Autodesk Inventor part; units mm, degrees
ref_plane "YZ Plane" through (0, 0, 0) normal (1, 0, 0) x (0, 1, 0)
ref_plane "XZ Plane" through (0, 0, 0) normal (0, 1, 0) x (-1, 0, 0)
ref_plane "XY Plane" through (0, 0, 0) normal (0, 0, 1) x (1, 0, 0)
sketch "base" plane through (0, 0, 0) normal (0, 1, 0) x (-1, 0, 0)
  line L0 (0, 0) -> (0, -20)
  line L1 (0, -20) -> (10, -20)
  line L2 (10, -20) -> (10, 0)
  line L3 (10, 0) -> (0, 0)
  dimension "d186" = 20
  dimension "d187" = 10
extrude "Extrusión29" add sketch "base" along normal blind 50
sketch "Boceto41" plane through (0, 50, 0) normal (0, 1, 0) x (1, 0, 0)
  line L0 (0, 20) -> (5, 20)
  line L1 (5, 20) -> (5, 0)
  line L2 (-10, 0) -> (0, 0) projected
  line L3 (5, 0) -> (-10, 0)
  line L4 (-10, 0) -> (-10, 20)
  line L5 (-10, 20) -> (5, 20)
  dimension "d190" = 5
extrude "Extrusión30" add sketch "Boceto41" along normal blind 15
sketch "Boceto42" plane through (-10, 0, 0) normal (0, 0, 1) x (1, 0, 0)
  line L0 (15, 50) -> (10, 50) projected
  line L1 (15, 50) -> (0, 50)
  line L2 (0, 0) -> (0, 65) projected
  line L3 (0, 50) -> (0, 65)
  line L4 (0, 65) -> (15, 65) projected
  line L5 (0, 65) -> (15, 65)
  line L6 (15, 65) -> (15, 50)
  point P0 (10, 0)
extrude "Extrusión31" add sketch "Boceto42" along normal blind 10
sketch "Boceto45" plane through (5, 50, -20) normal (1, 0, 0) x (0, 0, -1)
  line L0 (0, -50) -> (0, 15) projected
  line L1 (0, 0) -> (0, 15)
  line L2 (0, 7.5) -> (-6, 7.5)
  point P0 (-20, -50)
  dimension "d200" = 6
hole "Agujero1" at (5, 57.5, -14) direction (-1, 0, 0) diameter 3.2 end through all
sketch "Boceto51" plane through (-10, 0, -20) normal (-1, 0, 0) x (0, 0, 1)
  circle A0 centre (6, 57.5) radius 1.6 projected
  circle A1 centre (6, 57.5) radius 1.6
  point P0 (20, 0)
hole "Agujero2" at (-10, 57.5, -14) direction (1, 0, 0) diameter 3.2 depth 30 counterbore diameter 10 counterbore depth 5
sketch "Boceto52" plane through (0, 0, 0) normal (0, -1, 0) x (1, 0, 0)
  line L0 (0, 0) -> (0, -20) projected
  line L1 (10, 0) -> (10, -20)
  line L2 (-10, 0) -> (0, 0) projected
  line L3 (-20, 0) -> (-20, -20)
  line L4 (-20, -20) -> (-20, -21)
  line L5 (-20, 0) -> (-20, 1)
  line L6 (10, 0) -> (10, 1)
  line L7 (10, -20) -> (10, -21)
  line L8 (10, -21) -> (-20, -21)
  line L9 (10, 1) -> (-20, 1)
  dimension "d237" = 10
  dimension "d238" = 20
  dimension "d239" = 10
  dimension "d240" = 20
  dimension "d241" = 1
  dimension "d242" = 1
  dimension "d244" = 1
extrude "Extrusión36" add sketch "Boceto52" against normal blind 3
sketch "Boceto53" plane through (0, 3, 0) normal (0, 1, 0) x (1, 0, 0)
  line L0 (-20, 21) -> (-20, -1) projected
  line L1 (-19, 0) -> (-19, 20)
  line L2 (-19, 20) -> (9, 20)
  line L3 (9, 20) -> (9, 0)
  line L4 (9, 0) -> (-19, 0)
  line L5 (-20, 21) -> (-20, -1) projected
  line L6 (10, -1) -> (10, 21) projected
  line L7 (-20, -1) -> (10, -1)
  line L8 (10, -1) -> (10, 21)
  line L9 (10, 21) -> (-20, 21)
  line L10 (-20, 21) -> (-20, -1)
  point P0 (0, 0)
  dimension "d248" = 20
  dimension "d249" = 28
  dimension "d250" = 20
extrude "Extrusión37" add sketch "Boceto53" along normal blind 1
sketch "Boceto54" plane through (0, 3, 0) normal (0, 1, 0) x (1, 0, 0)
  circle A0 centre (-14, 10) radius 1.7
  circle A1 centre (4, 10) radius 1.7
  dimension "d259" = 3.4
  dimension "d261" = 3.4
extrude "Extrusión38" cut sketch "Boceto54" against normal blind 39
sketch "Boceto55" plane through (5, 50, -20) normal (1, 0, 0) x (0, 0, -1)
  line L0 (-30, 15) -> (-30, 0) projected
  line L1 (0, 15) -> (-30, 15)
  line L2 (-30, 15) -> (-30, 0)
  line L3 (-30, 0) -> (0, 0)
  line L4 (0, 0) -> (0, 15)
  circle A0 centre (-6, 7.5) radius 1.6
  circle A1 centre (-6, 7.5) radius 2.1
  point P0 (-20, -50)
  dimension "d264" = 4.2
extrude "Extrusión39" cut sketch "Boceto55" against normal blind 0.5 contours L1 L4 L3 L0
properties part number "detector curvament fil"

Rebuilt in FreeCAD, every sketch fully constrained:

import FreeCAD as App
import Part
import Sketcher

V = App.Vector
Q = App.Units.Quantity

doc = App.newDocument("Part")
params = doc.addObject("Spreadsheet::Sheet", "Params")
for row, (alias, value) in enumerate([
    ("sketch1_width", "10 mm"),
    ("sketch1_height", "20 mm"),
    ("pad1_length", "50 mm"),
    ("sketch2_width", "15 mm"),
    ("sketch2_height", "20 mm"),
    ("pad2_length", "15 mm"),
    ("sketch3_width", "15 mm"),
    ("pad3_length", "10 mm"),
    ("sketch4_diameter", "3.2 mm"),
    ("hole_diameter", "3.2 mm"),
    ("sketch5_diameter", "3.2 mm"),
    ("hole2_diameter", "3.2 mm"),
    ("hole2_depth", "30 mm"),
    ("hole2_cbore_diameter", "10 mm"),
    ("hole2_cbore_depth", "5 mm"),
    ("sketch6_height", "22 mm"),
    ("pad4_length", "3 mm"),
    ("sketch7_width", "28 mm"),
    ("sketch7_height", "20 mm"),
    ("sketch7_width2", "30 mm"),
    ("sketch7_height2", "22 mm"),
    ("pad5_length", "1 mm"),
    ("sketch8_diameter", "3.4 mm"),
    ("pocket1_length", "39 mm"),
    ("sketch9_diameter", "4.2 mm"),
    ("sketch9_width", "15 mm"),
    ("sketch9_height", "30 mm"),
    ("pocket2_length", "0.5 mm"),
], start=1):
    params.set(f"A{row}", alias)
    params.set(f"B{row}", "=" + value)
    params.setAlias(f"B{row}", alias)

body = doc.addObject("PartDesign::Body", "Body")

# Sketch on XZ plane
sketch1 = body.newObject("Sketcher::SketchObject", "Sketch")
sketch1.AttachmentSupport = (doc.getObject("XZ_Plane"), [""])
sketch1.MapMode = "FlatFace"
sketch1.addGeometry(Part.LineSegment(V(-10, 0, 0), V(0, 0, 0)), False)
sketch1.addGeometry(Part.LineSegment(V(0, 0, 0), V(0, -20, 0)), False)
sketch1.addGeometry(Part.LineSegment(V(0, -20, 0), V(-10, -20, 0)), False)
sketch1.addGeometry(Part.LineSegment(V(-10, -20, 0), V(-10, 0, 0)), False)
sketch1.addConstraint(Sketcher.Constraint("Coincident", 0, 2, 1, 1))
sketch1.addConstraint(Sketcher.Constraint("Coincident", 1, 2, 2, 1))
sketch1.addConstraint(Sketcher.Constraint("Coincident", 2, 2, 3, 1))
sketch1.addConstraint(Sketcher.Constraint("Coincident", 3, 2, 0, 1))
sketch1.addConstraint(Sketcher.Constraint("Horizontal", 0))
sketch1.addConstraint(Sketcher.Constraint("Vertical", 1))
sketch1.addConstraint(Sketcher.Constraint("Horizontal", 2))
sketch1.addConstraint(Sketcher.Constraint("Vertical", 3))
sketch1.addConstraint(Sketcher.Constraint("Coincident", 0, 2, -1, 1))
sketch1.addConstraint(Sketcher.Constraint("DistanceX", 0, 1, 0, 2, Q("10 mm")))
sketch1.addConstraint(Sketcher.Constraint("DistanceY", 1, 2, 1, 1, Q("20 mm")))
sketch1.setExpression("Constraints[9]", "Params.sketch1_width")
sketch1.setExpression("Constraints[10]", "Params.sketch1_height")
pad1 = body.newObject("PartDesign::Pad", "Pad")
pad1.Profile = sketch1
pad1.setExpression("Length", "Params.pad1_length")
pad1.Reversed = True

# Sketch on XZ plane
sketch2 = body.newObject("Sketcher::SketchObject", "Sketch001")
sketch2.AttachmentSupport = (doc.getObject("XZ_Plane"), [""])
sketch2.MapMode = "FlatFace"
sketch2.AttachmentOffset = App.Placement(V(0, 0, -50), App.Rotation())
sketch2.addGeometry(Part.LineSegment(V(5, -20, 0), V(-10, -20, 0)), False)
sketch2.addGeometry(Part.LineSegment(V(-10, -20, 0), V(-10, 0, 0)), False)
sketch2.addGeometry(Part.LineSegment(V(-10, 0, 0), V(5, 0, 0)), False)
sketch2.addGeometry(Part.LineSegment(V(5, 0, 0), V(5, -20, 0)), False)
sketch2.addConstraint(Sketcher.Constraint("Coincident", 0, 2, 1, 1))
sketch2.addConstraint(Sketcher.Constraint("Coincident", 1, 2, 2, 1))
sketch2.addConstraint(Sketcher.Constraint("Coincident", 2, 2, 3, 1))
sketch2.addConstraint(Sketcher.Constraint("Coincident", 3, 2, 0, 1))
sketch2.addConstraint(Sketcher.Constraint("Horizontal", 0))
sketch2.addConstraint(Sketcher.Constraint("Vertical", 1))
sketch2.addConstraint(Sketcher.Constraint("Horizontal", 2))
sketch2.addConstraint(Sketcher.Constraint("Vertical", 3))
sketch2.addConstraint(Sketcher.Constraint("PointOnObject", 1, 2, -1))
sketch2.addConstraint(Sketcher.Constraint("DistanceX", -1, 1, 2, 2, Q("5 mm")))
sketch2.addConstraint(Sketcher.Constraint("DistanceX", 0, 2, 0, 1, Q("15 mm")))
sketch2.addConstraint(Sketcher.Constraint("DistanceY", 1, 1, 1, 2, Q("20 mm")))
sketch2.setExpression("Constraints[10]", "Params.sketch2_width")
sketch2.setExpression("Constraints[11]", "Params.sketch2_height")
pad2 = body.newObject("PartDesign::Pad", "Pad001")
pad2.Profile = sketch2
pad2.setExpression("Length", "Params.pad2_length")
pad2.Reversed = True

# Sketch on XY plane
sketch3 = body.newObject("Sketcher::SketchObject", "Sketch002")
sketch3.AttachmentSupport = (doc.getObject("XY_Plane"), [""])
sketch3.MapMode = "FlatFace"
sketch3.addGeometry(Part.LineSegment(V(-10, 50, 0), V(5, 50, 0)), False)
sketch3.addGeometry(Part.LineSegment(V(5, 50, 0), V(5, 65, 0)), False)
sketch3.addGeometry(Part.LineSegment(V(5, 65, 0), V(-10, 65, 0)), False)
sketch3.addGeometry(Part.LineSegment(V(-10, 65, 0), V(-10, 50, 0)), False)
sketch3.addConstraint(Sketcher.Constraint("Coincident", 0, 2, 1, 1))
sketch3.addConstraint(Sketcher.Constraint("Coincident", 1, 2, 2, 1))
sketch3.addConstraint(Sketcher.Constraint("Coincident", 2, 2, 3, 1))
sketch3.addConstraint(Sketcher.Constraint("Coincident", 3, 2, 0, 1))
sketch3.addConstraint(Sketcher.Constraint("Horizontal", 0))
sketch3.addConstraint(Sketcher.Constraint("Vertical", 1))
sketch3.addConstraint(Sketcher.Constraint("Horizontal", 2))
sketch3.addConstraint(Sketcher.Constraint("Vertical", 3))
sketch3.addConstraint(Sketcher.Constraint("Equal", 2, 1))
sketch3.addConstraint(Sketcher.Constraint("DistanceX", 0, 1, 0, 2, Q("15 mm")))
sketch3.addConstraint(Sketcher.Constraint("DistanceX", -1, 1, 0, 2, Q("5 mm")))
sketch3.addConstraint(Sketcher.Constraint("DistanceY", -1, 1, 0, 2, Q("50 mm")))
sketch3.setExpression("Constraints[9]", "Params.sketch3_width")
pad3 = body.newObject("PartDesign::Pad", "Pad002")
pad3.Profile = sketch3
pad3.setExpression("Length", "Params.pad3_length")

# Sketch on YZ plane
sketch4 = body.newObject("Sketcher::SketchObject", "Sketch003")
sketch4.AttachmentSupport = (doc.getObject("YZ_Plane"), [""])
sketch4.MapMode = "FlatFace"
sketch4.AttachmentOffset = App.Placement(V(0, 0, 5), App.Rotation())
sketch4.addGeometry(Part.Circle(V(57.5, -14, 0), V(0, 0, 1), 1.6), False)
sketch4.addConstraint(Sketcher.Constraint("Diameter", 0, Q("3.2 mm")))
sketch4.addConstraint(Sketcher.Constraint("DistanceY", 0, 3, -1, 1, Q("14 mm")))
sketch4.addConstraint(Sketcher.Constraint("DistanceX", -1, 1, 0, 3, Q("57.5 mm")))
sketch4.setExpression("Constraints[0]", "Params.sketch4_diameter")
doc.recompute()
hole = body.newObject("PartDesign::Hole", "Hole")
hole.Profile = sketch4
hole.ThreadType = "None"
hole.setExpression("Diameter", "Params.hole_diameter")
hole.DepthType = "ThroughAll"

# Sketch on YZ plane
sketch5 = body.newObject("Sketcher::SketchObject", "Sketch004")
sketch5.AttachmentSupport = (doc.getObject("YZ_Plane"), [""])
sketch5.MapMode = "FlatFace"
sketch5.AttachmentOffset = App.Placement(V(0, 0, -10), App.Rotation())
sketch5.addGeometry(Part.Circle(V(57.5, -14, 0), V(0, 0, 1), 1.6), False)
sketch5.addConstraint(Sketcher.Constraint("Diameter", 0, Q("3.2 mm")))
sketch5.addConstraint(Sketcher.Constraint("DistanceY", 0, 3, -1, 1, Q("14 mm")))
sketch5.addConstraint(Sketcher.Constraint("DistanceX", -1, 1, 0, 3, Q("57.5 mm")))
sketch5.setExpression("Constraints[0]", "Params.sketch5_diameter")
doc.recompute()
hole2 = body.newObject("PartDesign::Hole", "Hole001")
hole2.Profile = sketch5
hole2.ThreadType = "None"
hole2.setExpression("Diameter", "Params.hole2_diameter")
hole2.DepthType = "Dimension"
hole2.setExpression("Depth", "Params.hole2_depth")
hole2.DrillPoint = "Flat"
hole2.HoleCutType = "Counterbore"
hole2.setExpression("HoleCutDiameter", "Params.hole2_cbore_diameter")
hole2.setExpression("HoleCutDepth", "Params.hole2_cbore_depth")
hole2.Reversed = True

# Sketch on XZ plane
sketch6 = body.newObject("Sketcher::SketchObject", "Sketch005")
sketch6.AttachmentSupport = (doc.getObject("XZ_Plane"), [""])
sketch6.MapMode = "FlatFace"
sketch6.addGeometry(Part.LineSegment(V(10, -21, 0), V(10, 1, 0)), False)
sketch6.addGeometry(Part.LineSegment(V(10, 1, 0), V(-20, 1, 0)), False)
sketch6.addGeometry(Part.LineSegment(V(-20, 1, 0), V(-20, -21, 0)), False)
sketch6.addGeometry(Part.LineSegment(V(-20, -21, 0), V(10, -21, 0)), False)
sketch6.addConstraint(Sketcher.Constraint("Coincident", 0, 2, 1, 1))
sketch6.addConstraint(Sketcher.Constraint("Coincident", 1, 2, 2, 1))
sketch6.addConstraint(Sketcher.Constraint("Coincident", 2, 2, 3, 1))
sketch6.addConstraint(Sketcher.Constraint("Coincident", 3, 2, 0, 1))
sketch6.addConstraint(Sketcher.Constraint("Vertical", 0))
sketch6.addConstraint(Sketcher.Constraint("Horizontal", 1))
sketch6.addConstraint(Sketcher.Constraint("Vertical", 2))
sketch6.addConstraint(Sketcher.Constraint("Horizontal", 3))
sketch6.addConstraint(Sketcher.Constraint("DistanceX", -1, 1, 0, 2, Q("10 mm")))
sketch6.addConstraint(Sketcher.Constraint("DistanceY", -1, 1, 0, 2, Q("1 mm")))
sketch6.addConstraint(Sketcher.Constraint("DistanceX", 1, 2, -1, 1, Q("20 mm")))
sketch6.addConstraint(Sketcher.Constraint("DistanceY", 0, 1, 0, 2, Q("22 mm")))
sketch6.setExpression("Constraints[11]", "Params.sketch6_height")
pad4 = body.newObject("PartDesign::Pad", "Pad003")
pad4.Profile = sketch6
pad4.setExpression("Length", "Params.pad4_length")
pad4.Reversed = True

# Sketch on XZ plane
sketch7 = body.newObject("Sketcher::SketchObject", "Sketch006")
sketch7.AttachmentSupport = (doc.getObject("XZ_Plane"), [""])
sketch7.MapMode = "FlatFace"
sketch7.AttachmentOffset = App.Placement(V(0, 0, -3), App.Rotation())
sketch7.addGeometry(Part.LineSegment(V(10, -21, 0), V(-20, -21, 0)), False)
sketch7.addGeometry(Part.LineSegment(V(-20, -21, 0), V(-20, 1, 0)), False)
sketch7.addGeometry(Part.LineSegment(V(-20, 1, 0), V(10, 1, 0)), False)
sketch7.addGeometry(Part.LineSegment(V(10, 1, 0), V(10, -21, 0)), False)
sketch7.addGeometry(Part.LineSegment(V(9, 0, 0), V(-19, 0, 0)), False)
sketch7.addGeometry(Part.LineSegment(V(-19, 0, 0), V(-19, -20, 0)), False)
sketch7.addGeometry(Part.LineSegment(V(-19, -20, 0), V(9, -20, 0)), False)
sketch7.addGeometry(Part.LineSegment(V(9, -20, 0), V(9, 0, 0)), False)
sketch7.addConstraint(Sketcher.Constraint("Coincident", 0, 2, 1, 1))
sketch7.addConstraint(Sketcher.Constraint("Coincident", 1, 2, 2, 1))
sketch7.addConstraint(Sketcher.Constraint("Coincident", 2, 2, 3, 1))
sketch7.addConstraint(Sketcher.Constraint("Coincident", 3, 2, 0, 1))
sketch7.addConstraint(Sketcher.Constraint("Coincident", 4, 2, 5, 1))
sketch7.addConstraint(Sketcher.Constraint("Coincident", 5, 2, 6, 1))
sketch7.addConstraint(Sketcher.Constraint("Coincident", 6, 2, 7, 1))
sketch7.addConstraint(Sketcher.Constraint("Coincident", 7, 2, 4, 1))
sketch7.addConstraint(Sketcher.Constraint("Horizontal", 0))
sketch7.addConstraint(Sketcher.Constraint("Vertical", 1))
sketch7.addConstraint(Sketcher.Constraint("Horizontal", 2))
sketch7.addConstraint(Sketcher.Constraint("Vertical", 3))
sketch7.addConstraint(Sketcher.Constraint("Horizontal", 4))
sketch7.addConstraint(Sketcher.Constraint("Vertical", 5))
sketch7.addConstraint(Sketcher.Constraint("Horizontal", 6))
sketch7.addConstraint(Sketcher.Constraint("Vertical", 7))
sketch7.addConstraint(Sketcher.Constraint("PointOnObject", 4, 2, -1))
sketch7.addConstraint(Sketcher.Constraint("DistanceX", 4, 2, 4, 1, Q("28 mm")))
sketch7.addConstraint(Sketcher.Constraint("DistanceY", 5, 2, 5, 1, Q("20 mm")))
sketch7.addConstraint(Sketcher.Constraint("DistanceX", 0, 2, -1, 1, Q("20 mm")))
sketch7.addConstraint(Sketcher.Constraint("DistanceX", 0, 2, 0, 1, Q("30 mm")))
sketch7.addConstraint(Sketcher.Constraint("DistanceY", 1, 1, 1, 2, Q("22 mm")))
sketch7.addConstraint(Sketcher.Constraint("DistanceY", 0, 2, -1, 1, Q("21 mm")))
sketch7.addConstraint(Sketcher.Constraint("DistanceX", 4, 2, -1, 1, Q("19 mm")))
sketch7.setExpression("Constraints[17]", "Params.sketch7_width")
sketch7.setExpression("Constraints[18]", "Params.sketch7_height")
sketch7.setExpression("Constraints[20]", "Params.sketch7_width2")
sketch7.setExpression("Constraints[21]", "Params.sketch7_height2")
pad5 = body.newObject("PartDesign::Pad", "Pad004")
pad5.Profile = sketch7
pad5.setExpression("Length", "Params.pad5_length")
pad5.Reversed = True

# Sketch on XZ plane
sketch8 = body.newObject("Sketcher::SketchObject", "Sketch007")
sketch8.AttachmentSupport = (doc.getObject("XZ_Plane"), [""])
sketch8.MapMode = "FlatFace"
sketch8.AttachmentOffset = App.Placement(V(0, 0, -3), App.Rotation())
sketch8.addGeometry(Part.Circle(V(-14, -10, 0), V(0, 0, 1), 1.7), False)
sketch8.addGeometry(Part.Circle(V(4, -10, 0), V(0, 0, 1), 1.7), False)
sketch8.addConstraint(Sketcher.Constraint("Equal", 0, 1))
sketch8.addConstraint(Sketcher.Constraint("Horizontal", 0, 3, 1, 3))
sketch8.addConstraint(Sketcher.Constraint("Diameter", 0, Q("3.4 mm")))
sketch8.addConstraint(Sketcher.Constraint("DistanceX", 0, 3, -1, 1, Q("14 mm")))
sketch8.addConstraint(Sketcher.Constraint("DistanceY", 0, 3, -1, 1, Q("10 mm")))
sketch8.addConstraint(Sketcher.Constraint("DistanceX", -1, 1, 1, 3, Q("4 mm")))
sketch8.setExpression("Constraints[2]", "Params.sketch8_diameter")
pocket1 = body.newObject("PartDesign::Pocket", "Pocket")
pocket1.Profile = sketch8
pocket1.setExpression("Length", "Params.pocket1_length")
pocket1.Reversed = True

# Sketch on YZ plane
sketch9 = body.newObject("Sketcher::SketchObject", "Sketch008")
sketch9.AttachmentSupport = (doc.getObject("YZ_Plane"), [""])
sketch9.MapMode = "FlatFace"
sketch9.AttachmentOffset = App.Placement(V(0, 0, 5), App.Rotation())
sketch9.addGeometry(Part.LineSegment(V(65, -20, 0), V(65, 10, 0)), False)
sketch9.addGeometry(Part.LineSegment(V(65, 10, 0), V(50, 10, 0)), False)
sketch9.addGeometry(Part.LineSegment(V(50, 10, 0), V(50, -20, 0)), False)
sketch9.addGeometry(Part.LineSegment(V(50, -20, 0), V(65, -20, 0)), False)
sketch9.addGeometry(Part.Circle(V(57.5, -14, 0), V(0, 0, 1), 2.1), False)
sketch9.addConstraint(Sketcher.Constraint("Coincident", 0, 2, 1, 1))
sketch9.addConstraint(Sketcher.Constraint("Coincident", 1, 2, 2, 1))
sketch9.addConstraint(Sketcher.Constraint("Coincident", 2, 2, 3, 1))
sketch9.addConstraint(Sketcher.Constraint("Coincident", 3, 2, 0, 1))
sketch9.addConstraint(Sketcher.Constraint("Vertical", 0))
sketch9.addConstraint(Sketcher.Constraint("Horizontal", 1))
sketch9.addConstraint(Sketcher.Constraint("Vertical", 2))
sketch9.addConstraint(Sketcher.Constraint("Horizontal", 3))
sketch9.addConstraint(Sketcher.Constraint("Diameter", 4, Q("4.2 mm")))
sketch9.addConstraint(Sketcher.Constraint("DistanceX", 1, 2, 1, 1, Q("15 mm")))
sketch9.addConstraint(Sketcher.Constraint("DistanceY", 0, 1, 0, 2, Q("30 mm")))
sketch9.addConstraint(Sketcher.Constraint("DistanceY", 4, 3, -1, 1, Q("14 mm")))
sketch9.addConstraint(Sketcher.Constraint("DistanceX", -1, 1, 0, 2, Q("65 mm")))
sketch9.addConstraint(Sketcher.Constraint("DistanceY", -1, 1, 0, 2, Q("10 mm")))
sketch9.addConstraint(Sketcher.Constraint("DistanceX", -1, 1, 4, 3, Q("57.5 mm")))
sketch9.setExpression("Constraints[8]", "Params.sketch9_diameter")
sketch9.setExpression("Constraints[9]", "Params.sketch9_width")
sketch9.setExpression("Constraints[10]", "Params.sketch9_height")
pocket2 = body.newObject("PartDesign::Pocket", "Pocket001")
pocket2.Profile = sketch9
pocket2.setExpression("Length", "Params.pocket2_length")

doc.recompute()
